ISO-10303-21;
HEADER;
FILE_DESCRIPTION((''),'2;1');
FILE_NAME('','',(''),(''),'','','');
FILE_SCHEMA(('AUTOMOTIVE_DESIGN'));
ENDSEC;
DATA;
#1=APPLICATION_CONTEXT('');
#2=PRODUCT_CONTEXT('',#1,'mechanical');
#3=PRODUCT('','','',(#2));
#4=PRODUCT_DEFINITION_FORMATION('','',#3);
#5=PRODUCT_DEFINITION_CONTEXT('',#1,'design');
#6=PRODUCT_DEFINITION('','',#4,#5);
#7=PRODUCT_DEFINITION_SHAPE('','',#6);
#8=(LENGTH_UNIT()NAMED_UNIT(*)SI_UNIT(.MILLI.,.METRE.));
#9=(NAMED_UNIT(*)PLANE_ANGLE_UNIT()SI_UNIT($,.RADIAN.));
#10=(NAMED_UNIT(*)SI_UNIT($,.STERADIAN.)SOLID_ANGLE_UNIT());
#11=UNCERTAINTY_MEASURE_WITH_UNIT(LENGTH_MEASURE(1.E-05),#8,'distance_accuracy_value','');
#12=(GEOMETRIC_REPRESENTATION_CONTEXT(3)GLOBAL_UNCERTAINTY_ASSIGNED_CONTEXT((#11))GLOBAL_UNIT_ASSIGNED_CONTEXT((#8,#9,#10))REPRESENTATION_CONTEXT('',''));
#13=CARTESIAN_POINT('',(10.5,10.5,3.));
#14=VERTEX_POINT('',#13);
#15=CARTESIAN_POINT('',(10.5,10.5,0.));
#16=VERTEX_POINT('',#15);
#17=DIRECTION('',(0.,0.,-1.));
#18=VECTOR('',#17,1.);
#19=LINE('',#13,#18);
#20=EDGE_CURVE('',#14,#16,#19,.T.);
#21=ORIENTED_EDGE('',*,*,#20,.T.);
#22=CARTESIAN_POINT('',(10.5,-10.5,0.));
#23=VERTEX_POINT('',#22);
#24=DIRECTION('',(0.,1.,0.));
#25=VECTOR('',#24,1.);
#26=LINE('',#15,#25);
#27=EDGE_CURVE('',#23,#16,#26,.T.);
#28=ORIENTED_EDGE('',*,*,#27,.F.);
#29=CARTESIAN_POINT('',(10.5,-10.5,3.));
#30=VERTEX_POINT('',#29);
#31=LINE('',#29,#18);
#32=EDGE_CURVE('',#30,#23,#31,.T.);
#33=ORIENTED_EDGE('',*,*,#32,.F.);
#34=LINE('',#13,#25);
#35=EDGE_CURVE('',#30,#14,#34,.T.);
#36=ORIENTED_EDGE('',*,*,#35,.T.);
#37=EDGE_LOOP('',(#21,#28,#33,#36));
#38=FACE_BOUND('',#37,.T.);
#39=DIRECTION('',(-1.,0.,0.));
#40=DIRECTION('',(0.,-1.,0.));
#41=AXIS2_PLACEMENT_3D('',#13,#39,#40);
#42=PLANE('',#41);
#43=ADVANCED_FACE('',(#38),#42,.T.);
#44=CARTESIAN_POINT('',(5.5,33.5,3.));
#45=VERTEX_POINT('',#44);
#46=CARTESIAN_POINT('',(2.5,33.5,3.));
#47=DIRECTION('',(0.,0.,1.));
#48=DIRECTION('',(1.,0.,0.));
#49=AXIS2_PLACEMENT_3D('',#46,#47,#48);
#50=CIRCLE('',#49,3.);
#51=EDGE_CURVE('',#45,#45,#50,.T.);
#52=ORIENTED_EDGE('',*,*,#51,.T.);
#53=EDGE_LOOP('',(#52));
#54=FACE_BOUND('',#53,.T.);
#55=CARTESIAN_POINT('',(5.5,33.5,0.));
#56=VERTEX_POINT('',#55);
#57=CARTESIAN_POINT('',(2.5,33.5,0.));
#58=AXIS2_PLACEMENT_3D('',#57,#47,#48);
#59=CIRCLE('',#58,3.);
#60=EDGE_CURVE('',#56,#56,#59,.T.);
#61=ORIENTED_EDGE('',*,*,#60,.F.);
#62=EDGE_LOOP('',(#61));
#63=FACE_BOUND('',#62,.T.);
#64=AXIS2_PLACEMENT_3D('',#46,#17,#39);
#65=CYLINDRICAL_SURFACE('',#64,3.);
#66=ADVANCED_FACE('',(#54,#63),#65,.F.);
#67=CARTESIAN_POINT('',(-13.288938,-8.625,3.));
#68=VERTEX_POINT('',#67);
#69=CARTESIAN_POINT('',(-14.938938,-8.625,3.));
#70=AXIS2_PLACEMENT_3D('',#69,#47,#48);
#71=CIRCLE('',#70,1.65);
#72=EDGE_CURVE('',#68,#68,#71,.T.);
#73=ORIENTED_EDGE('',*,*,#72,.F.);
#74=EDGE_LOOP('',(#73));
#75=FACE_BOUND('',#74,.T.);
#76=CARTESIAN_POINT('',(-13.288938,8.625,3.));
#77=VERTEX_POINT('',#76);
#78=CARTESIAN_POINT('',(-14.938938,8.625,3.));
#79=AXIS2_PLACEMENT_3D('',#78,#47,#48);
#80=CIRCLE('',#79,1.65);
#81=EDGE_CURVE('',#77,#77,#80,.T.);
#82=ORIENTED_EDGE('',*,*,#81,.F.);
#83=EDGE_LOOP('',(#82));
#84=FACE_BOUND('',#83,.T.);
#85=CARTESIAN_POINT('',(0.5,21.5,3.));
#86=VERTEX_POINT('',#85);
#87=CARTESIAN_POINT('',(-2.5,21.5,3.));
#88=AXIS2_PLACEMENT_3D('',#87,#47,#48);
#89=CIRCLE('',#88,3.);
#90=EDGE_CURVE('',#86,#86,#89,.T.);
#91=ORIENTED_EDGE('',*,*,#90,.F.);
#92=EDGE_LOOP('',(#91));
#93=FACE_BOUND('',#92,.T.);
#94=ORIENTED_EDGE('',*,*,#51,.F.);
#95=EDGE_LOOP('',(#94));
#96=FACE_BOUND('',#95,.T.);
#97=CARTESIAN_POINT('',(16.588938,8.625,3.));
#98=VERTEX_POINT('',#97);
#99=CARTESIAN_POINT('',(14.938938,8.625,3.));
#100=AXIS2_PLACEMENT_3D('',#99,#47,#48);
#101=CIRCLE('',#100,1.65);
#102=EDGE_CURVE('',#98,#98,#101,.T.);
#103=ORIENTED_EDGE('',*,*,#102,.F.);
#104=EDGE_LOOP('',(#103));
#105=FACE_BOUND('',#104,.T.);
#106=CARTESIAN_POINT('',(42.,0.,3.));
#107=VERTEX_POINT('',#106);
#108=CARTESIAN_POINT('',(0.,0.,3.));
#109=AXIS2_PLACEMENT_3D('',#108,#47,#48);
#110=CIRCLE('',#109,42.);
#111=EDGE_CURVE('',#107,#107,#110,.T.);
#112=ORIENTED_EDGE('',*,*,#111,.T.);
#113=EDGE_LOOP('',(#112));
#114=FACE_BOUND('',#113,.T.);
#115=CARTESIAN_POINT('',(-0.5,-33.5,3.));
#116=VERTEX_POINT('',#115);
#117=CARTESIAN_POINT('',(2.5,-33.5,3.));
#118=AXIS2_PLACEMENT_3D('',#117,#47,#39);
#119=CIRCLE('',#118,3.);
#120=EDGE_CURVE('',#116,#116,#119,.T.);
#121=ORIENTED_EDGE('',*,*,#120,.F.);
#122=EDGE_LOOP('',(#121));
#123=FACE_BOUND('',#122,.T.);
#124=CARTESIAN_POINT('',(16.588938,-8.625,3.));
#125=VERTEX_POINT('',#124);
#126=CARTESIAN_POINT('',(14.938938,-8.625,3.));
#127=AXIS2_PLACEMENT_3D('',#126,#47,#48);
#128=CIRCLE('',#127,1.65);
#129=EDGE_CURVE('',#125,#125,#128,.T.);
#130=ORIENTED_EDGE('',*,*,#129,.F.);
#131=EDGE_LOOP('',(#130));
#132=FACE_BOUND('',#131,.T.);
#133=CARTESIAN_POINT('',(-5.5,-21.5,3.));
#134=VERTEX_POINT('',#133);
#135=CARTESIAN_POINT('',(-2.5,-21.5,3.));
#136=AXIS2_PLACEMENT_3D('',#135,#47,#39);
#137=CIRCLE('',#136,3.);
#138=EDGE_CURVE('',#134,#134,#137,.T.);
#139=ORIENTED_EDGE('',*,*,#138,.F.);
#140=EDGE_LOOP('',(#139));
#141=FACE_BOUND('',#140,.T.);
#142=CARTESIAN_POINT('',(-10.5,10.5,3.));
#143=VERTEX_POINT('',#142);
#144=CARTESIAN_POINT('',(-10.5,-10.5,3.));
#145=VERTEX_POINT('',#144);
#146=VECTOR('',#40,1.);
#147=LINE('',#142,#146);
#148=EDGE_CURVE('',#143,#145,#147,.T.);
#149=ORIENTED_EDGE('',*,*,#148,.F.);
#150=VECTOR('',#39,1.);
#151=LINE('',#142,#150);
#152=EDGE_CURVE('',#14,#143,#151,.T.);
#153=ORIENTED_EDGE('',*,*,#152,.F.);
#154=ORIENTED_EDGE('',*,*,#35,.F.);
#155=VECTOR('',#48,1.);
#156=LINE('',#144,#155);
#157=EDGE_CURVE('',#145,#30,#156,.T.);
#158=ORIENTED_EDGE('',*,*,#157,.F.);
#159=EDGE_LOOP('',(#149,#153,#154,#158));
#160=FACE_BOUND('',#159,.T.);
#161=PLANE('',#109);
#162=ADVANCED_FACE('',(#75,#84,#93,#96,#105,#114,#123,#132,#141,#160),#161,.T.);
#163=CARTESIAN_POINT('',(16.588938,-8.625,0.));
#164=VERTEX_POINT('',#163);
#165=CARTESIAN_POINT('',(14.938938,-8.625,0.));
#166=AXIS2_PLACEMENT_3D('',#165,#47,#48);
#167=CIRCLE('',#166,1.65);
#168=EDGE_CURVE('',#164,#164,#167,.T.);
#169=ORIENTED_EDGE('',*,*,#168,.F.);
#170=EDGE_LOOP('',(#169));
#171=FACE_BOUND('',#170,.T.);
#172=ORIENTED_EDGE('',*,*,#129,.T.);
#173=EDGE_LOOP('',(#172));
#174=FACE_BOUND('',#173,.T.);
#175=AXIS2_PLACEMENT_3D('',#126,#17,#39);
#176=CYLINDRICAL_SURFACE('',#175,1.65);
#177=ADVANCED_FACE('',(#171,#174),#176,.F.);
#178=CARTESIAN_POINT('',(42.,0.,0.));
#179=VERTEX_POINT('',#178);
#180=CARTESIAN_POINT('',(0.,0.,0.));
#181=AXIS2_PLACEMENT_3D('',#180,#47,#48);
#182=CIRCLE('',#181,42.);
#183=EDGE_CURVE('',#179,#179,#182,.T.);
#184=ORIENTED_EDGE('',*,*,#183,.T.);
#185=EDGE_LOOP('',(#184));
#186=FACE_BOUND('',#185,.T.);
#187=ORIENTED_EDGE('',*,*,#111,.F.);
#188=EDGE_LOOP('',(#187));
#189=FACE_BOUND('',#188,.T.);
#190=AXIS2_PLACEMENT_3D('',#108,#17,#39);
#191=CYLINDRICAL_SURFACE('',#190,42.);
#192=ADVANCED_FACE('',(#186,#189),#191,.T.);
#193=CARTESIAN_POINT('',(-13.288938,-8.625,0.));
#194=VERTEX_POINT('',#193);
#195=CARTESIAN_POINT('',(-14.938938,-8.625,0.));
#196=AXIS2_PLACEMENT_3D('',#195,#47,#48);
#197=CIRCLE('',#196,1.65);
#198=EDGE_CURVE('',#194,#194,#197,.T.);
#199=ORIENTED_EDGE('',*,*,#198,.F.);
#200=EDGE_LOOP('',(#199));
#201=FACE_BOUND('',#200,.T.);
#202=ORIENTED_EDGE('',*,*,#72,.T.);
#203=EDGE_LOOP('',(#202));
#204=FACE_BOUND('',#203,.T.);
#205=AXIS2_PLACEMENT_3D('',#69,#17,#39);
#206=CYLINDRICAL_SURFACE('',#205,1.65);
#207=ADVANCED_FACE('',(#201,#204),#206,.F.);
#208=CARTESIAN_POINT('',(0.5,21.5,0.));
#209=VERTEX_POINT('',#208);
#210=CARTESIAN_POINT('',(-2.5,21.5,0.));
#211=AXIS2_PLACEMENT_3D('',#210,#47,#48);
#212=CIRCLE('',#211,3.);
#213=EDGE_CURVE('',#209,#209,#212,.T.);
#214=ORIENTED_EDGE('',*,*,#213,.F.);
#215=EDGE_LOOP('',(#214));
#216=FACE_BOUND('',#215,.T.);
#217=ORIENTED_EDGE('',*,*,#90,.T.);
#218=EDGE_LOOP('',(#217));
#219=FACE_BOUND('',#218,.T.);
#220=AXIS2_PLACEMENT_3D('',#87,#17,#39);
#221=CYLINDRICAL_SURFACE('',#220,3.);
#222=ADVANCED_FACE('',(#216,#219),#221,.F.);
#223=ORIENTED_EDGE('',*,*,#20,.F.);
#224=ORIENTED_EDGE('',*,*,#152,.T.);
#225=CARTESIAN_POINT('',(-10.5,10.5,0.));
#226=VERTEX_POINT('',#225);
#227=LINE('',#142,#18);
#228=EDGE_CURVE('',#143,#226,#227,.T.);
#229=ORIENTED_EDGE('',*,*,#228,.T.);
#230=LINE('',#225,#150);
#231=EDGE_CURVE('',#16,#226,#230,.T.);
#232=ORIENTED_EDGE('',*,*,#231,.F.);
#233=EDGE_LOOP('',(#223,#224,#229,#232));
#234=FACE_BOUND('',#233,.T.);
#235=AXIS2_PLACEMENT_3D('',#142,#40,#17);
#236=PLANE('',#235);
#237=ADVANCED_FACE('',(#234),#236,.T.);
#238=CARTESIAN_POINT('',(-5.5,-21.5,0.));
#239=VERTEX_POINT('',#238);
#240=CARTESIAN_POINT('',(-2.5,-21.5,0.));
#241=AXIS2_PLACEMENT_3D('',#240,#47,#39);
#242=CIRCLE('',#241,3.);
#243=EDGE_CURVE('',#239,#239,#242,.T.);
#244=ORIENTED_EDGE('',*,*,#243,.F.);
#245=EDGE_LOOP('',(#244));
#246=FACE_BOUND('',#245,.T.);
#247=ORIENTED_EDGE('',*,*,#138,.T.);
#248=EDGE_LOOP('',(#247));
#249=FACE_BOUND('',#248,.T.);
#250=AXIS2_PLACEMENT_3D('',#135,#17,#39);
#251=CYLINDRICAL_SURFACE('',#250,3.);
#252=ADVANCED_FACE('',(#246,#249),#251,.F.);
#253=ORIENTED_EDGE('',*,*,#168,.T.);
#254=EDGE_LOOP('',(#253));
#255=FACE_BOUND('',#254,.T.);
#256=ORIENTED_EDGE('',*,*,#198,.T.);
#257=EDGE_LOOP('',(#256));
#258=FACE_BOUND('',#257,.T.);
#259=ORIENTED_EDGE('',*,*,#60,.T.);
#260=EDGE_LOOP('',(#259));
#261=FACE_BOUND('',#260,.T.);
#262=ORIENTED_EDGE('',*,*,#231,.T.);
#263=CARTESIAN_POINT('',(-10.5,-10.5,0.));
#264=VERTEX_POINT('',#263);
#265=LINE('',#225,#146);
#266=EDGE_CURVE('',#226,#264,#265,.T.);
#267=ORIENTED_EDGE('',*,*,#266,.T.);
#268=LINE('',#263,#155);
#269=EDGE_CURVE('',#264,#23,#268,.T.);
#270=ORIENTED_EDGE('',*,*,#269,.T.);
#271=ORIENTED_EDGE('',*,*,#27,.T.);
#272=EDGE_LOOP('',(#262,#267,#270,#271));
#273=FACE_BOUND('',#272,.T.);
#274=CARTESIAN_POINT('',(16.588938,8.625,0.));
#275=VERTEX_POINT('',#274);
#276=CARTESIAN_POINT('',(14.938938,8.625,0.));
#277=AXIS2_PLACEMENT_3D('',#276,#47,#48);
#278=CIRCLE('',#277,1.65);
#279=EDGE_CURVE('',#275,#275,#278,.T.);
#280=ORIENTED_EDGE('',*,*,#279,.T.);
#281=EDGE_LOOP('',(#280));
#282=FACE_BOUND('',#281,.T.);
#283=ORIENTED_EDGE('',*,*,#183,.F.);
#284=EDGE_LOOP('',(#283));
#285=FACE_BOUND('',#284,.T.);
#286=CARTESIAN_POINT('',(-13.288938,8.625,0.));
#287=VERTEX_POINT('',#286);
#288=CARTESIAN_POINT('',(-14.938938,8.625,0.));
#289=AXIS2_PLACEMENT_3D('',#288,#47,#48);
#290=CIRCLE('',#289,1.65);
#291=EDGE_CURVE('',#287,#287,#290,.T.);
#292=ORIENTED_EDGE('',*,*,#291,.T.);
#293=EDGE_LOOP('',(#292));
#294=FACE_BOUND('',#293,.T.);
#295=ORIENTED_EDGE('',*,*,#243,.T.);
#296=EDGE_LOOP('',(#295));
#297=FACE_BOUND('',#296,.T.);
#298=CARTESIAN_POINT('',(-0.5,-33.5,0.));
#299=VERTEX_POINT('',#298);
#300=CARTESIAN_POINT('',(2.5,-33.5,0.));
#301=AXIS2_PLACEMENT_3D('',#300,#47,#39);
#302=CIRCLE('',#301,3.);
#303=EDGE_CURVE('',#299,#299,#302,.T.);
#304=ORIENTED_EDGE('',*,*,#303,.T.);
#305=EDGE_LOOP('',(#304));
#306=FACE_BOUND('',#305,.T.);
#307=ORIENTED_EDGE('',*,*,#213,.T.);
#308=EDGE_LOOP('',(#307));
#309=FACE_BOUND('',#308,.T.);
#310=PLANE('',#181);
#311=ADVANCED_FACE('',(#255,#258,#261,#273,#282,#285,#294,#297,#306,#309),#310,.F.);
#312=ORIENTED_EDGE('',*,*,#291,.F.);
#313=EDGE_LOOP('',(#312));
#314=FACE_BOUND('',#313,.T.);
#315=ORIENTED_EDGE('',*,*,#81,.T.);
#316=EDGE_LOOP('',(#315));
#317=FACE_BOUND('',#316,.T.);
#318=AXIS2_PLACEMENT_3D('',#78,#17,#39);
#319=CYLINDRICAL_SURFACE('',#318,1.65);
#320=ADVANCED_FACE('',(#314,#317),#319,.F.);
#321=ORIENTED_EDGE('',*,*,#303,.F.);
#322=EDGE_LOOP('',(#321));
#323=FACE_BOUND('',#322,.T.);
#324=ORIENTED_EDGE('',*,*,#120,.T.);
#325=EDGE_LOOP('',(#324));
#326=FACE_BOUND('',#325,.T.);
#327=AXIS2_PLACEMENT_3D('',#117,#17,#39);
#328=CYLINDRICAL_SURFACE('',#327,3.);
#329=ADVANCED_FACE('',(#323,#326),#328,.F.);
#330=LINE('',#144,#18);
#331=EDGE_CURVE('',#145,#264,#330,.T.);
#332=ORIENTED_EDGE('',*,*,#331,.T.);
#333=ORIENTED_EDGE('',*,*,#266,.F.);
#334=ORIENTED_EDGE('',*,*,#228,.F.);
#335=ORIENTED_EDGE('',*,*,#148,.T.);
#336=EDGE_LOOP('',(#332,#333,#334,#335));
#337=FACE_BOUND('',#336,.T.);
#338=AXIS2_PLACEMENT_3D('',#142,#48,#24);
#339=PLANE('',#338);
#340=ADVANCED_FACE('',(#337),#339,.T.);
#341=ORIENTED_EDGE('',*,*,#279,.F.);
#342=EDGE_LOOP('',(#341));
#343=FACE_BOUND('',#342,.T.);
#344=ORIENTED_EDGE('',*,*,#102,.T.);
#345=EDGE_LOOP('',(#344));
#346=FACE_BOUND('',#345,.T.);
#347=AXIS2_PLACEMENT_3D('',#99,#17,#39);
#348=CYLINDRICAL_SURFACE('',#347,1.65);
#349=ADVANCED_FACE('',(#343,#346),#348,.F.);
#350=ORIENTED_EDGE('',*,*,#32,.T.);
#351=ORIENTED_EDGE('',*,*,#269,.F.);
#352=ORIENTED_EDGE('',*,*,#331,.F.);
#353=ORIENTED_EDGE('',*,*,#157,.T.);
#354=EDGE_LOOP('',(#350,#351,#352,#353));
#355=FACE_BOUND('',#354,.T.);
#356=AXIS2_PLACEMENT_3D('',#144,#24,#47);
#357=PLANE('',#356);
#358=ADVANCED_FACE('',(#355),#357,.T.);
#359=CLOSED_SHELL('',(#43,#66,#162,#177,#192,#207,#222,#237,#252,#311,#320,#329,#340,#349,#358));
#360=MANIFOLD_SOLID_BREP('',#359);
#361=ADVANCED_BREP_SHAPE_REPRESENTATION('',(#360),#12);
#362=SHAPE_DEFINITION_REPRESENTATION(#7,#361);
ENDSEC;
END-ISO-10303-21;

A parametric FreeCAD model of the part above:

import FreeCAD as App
import Part
import Sketcher

doc = App.newDocument("Part")
body = doc.addObject("PartDesign::Body", "Body")

sketch1 = body.newObject("Sketcher::SketchObject", "Sketch")
sketch1.AttachmentSupport = (doc.getObject("XY_Plane"), [""])
sketch1.MapMode = "FlatFace"
sketch1.addGeometry(Part.Circle(App.Vector(0, 0, 0), App.Vector(0, 0, 1), 42), False)
sketch1.addGeometry(Part.Circle(App.Vector(-2.5, -21.5, 0), App.Vector(0, 0, 1), 3), False)
sketch1.addGeometry(Part.Circle(App.Vector(-14.9, -8.6, 0), App.Vector(0, 0, 1), 1.6), False)
sketch1.addGeometry(Part.Circle(App.Vector(2.5, -33.5, 0), App.Vector(0, 0, 1), 3), False)
sketch1.addGeometry(Part.Circle(App.Vector(14.9, -8.6, 0), App.Vector(0, 0, 1), 1.6), False)
sketch1.addGeometry(Part.Circle(App.Vector(-14.9, 8.6, 0), App.Vector(0, 0, 1), 1.6), False)
sketch1.addGeometry(Part.Circle(App.Vector(-2.5, 21.5, 0), App.Vector(0, 0, 1), 3), False)
sketch1.addGeometry(Part.LineSegment(App.Vector(10.5, -10.5, 0), App.Vector(-10.5, -10.5, 0)), False)
sketch1.addGeometry(Part.LineSegment(App.Vector(-10.5, -10.5, 0), App.Vector(-10.5, 10.5, 0)), False)
sketch1.addGeometry(Part.LineSegment(App.Vector(-10.5, 10.5, 0), App.Vector(10.5, 10.5, 0)), False)
sketch1.addGeometry(Part.LineSegment(App.Vector(10.5, 10.5, 0), App.Vector(10.5, -10.5, 0)), False)
sketch1.addGeometry(Part.Circle(App.Vector(14.9, 8.6, 0), App.Vector(0, 0, 1), 1.6), False)
sketch1.addGeometry(Part.Circle(App.Vector(2.5, 33.5, 0), App.Vector(0, 0, 1), 3), False)
sketch1.addConstraint(Sketcher.Constraint("Coincident", 7, 2, 8, 1))
sketch1.addConstraint(Sketcher.Constraint("Coincident", 8, 2, 9, 1))
sketch1.addConstraint(Sketcher.Constraint("Coincident", 9, 2, 10, 1))
sketch1.addConstraint(Sketcher.Constraint("Coincident", 10, 2, 7, 1))
sketch1.addConstraint(Sketcher.Constraint("Horizontal", 7))
sketch1.addConstraint(Sketcher.Constraint("Vertical", 8))
sketch1.addConstraint(Sketcher.Constraint("Horizontal", 9))
sketch1.addConstraint(Sketcher.Constraint("Vertical", 10))
sketch1.addConstraint(Sketcher.Constraint("Coincident", 0, 3, -1, 1))
sketch1.addConstraint(Sketcher.Constraint("Equal", 1, 3))
sketch1.addConstraint(Sketcher.Constraint("Equal", 2, 4))
sketch1.addConstraint(Sketcher.Constraint("Equal", 4, 5))
sketch1.addConstraint(Sketcher.Constraint("Equal", 3, 6))
sketch1.addConstraint(Sketcher.Constraint("Equal", 5, 11))
sketch1.addConstraint(Sketcher.Constraint("Equal", 6, 12))
sketch1.addConstraint(Sketcher.Constraint("Symmetric", 4, 3, 5, 3, -1, 1))
sketch1.addConstraint(Sketcher.Constraint("Symmetric", 2, 3, 11, 3, -1, 1))
sketch1.addConstraint(Sketcher.Constraint("Symmetric", 7, 2, 9, 2, -1, 1))
sketch1.addConstraint(Sketcher.Constraint("Symmetric", 2, 3, 4, 3, -2))
sketch1.addConstraint(Sketcher.Constraint("Symmetric", 1, 3, 6, 3, -1))
sketch1.addConstraint(Sketcher.Constraint("Symmetric", 3, 3, 12, 3, -1))
sketch1.addConstraint(Sketcher.Constraint("Equal", 9, 8))
sketch1.addConstraint(Sketcher.Constraint("Diameter", 0, 84.0))
sketch1.addConstraint(Sketcher.Constraint("Diameter", 1, 6.0))
sketch1.addConstraint(Sketcher.Constraint("Diameter", 2, 3.3))
sketch1.addConstraint(Sketcher.Constraint("DistanceX", 7, 2, 7, 1, 21.0))
sketch1.addConstraint(Sketcher.Constraint("DistanceX", 1, 3, 3, 3, 5.0))
sketch1.addConstraint(Sketcher.Constraint("DistanceY", 3, 3, 1, 3, 12.0))
sketch1.addConstraint(Sketcher.Constraint("DistanceY", 1, 3, 6, 3, 43.0))
sketch1.addConstraint(Sketcher.Constraint("DistanceX", 7, 2, 1, 3, 8.0))
sketch1.addConstraint(Sketcher.Constraint("DistanceY", 2, 3, 5, 3, 17.25))
sketch1.addConstraint(Sketcher.Constraint("DistanceX", 2, 3, -1, 1, 14.938938))
pad1 = body.newObject("PartDesign::Pad", "Pad")
pad1.Profile = sketch1
pad1.Length = 3

doc.recompute()
